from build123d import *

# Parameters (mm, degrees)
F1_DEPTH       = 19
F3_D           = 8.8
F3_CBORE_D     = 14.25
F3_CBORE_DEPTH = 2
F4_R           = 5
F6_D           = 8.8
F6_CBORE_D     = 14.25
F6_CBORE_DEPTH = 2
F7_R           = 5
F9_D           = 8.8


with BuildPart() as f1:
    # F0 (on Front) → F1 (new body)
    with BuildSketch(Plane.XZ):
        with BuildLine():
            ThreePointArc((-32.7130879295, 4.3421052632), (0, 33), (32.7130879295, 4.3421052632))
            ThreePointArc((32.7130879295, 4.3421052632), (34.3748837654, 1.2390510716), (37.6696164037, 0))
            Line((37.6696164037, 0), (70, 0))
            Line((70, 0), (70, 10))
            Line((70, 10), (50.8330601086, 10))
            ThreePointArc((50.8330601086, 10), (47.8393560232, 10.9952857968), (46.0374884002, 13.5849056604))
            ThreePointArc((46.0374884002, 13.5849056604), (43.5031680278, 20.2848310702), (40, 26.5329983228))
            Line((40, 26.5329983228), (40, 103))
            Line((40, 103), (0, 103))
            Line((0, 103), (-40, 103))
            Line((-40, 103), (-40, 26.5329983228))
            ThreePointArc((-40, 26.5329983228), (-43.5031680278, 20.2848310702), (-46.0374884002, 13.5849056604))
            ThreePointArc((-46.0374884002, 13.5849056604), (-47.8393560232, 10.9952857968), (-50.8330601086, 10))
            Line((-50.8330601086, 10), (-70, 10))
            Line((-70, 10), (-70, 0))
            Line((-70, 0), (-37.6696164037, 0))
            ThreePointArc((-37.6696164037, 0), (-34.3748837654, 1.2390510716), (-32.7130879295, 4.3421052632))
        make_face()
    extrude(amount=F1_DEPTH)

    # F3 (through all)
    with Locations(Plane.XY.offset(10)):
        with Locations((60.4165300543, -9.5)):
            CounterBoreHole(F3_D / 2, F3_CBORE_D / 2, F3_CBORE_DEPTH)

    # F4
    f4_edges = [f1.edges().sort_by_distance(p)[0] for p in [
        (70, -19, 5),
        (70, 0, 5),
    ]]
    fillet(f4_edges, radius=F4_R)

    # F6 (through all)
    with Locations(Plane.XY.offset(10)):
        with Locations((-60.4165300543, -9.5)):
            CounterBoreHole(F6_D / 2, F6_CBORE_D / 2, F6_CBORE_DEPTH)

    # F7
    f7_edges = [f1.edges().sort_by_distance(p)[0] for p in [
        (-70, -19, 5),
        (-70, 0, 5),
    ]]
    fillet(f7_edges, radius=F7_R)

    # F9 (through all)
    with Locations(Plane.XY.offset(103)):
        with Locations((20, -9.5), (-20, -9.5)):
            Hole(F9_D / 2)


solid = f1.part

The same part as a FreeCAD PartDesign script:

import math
import FreeCAD as App
import Part
import Sketcher


def edges_at(feature, points):
    """Names of the edges that pass closest to the given points."""
    edges = feature.Shape.Edges
    near = lambda p: min(range(len(edges)), key=lambda i: edges[i].distToShape(Part.Vertex(*p))[0])
    return sorted({f"Edge{near(p) + 1}" for p in points})

doc = App.newDocument("Part")
body = doc.addObject("PartDesign::Body", "Body")

# Sketch on XZ plane
sketch1 = body.newObject("Sketcher::SketchObject", "Sketch")
sketch1.AttachmentSupport = (doc.getObject("XZ_Plane"), [""])
sketch1.MapMode = "FlatFace"
sketch1.addGeometry([
    Part.ArcOfCircle(Part.Circle(App.Vector(0, 0, 0), App.Vector(0, 0, 1), 33), math.radians(8), math.radians(172)),  # 0
    Part.ArcOfCircle(Part.Circle(App.Vector(38, 5, 0), App.Vector(0, 0, 1), 5), math.radians(-172), math.radians(-90)),  # 1
    Part.LineSegment(App.Vector(38, 0, 0), App.Vector(70, 0, 0)),  # 2
    Part.LineSegment(App.Vector(70, 0, 0), App.Vector(70, 10, 0)),  # 3
    Part.LineSegment(App.Vector(70, 10, 0), App.Vector(51, 10, 0)),  # 4
    Part.ArcOfCircle(Part.Circle(App.Vector(51, 15, 0), App.Vector(0, 0, 1), 5), math.radians(-164), math.radians(-90)),  # 5
    Part.ArcOfCircle(Part.Circle(App.Vector(0, 0, 0), App.Vector(0, 0, 1), 48), math.radians(16.44), math.radians(33.56)),  # 6
    Part.LineSegment(App.Vector(40, 27, 0), App.Vector(40, 103, 0)),  # 7
    Part.LineSegment(App.Vector(40, 103, 0), App.Vector(-40, 103, 0)),  # 8
    Part.LineSegment(App.Vector(-40, 103, 0), App.Vector(-40, 27, 0)),  # 9
    Part.ArcOfCircle(Part.Circle(App.Vector(0, 0, 0), App.Vector(0, 0, 1), 48), math.radians(146.44), math.radians(163.56)),  # 10
    Part.ArcOfCircle(Part.Circle(App.Vector(-51, 15, 0), App.Vector(0, 0, 1), 5), math.radians(-90), math.radians(-16)),  # 11
    Part.LineSegment(App.Vector(-51, 10, 0), App.Vector(-70, 10, 0)),  # 12
    Part.LineSegment(App.Vector(-70, 10, 0), App.Vector(-70, 0, 0)),  # 13
    Part.LineSegment(App.Vector(-70, 0, 0), App.Vector(-38, 0, 0)),  # 14
    Part.ArcOfCircle(Part.Circle(App.Vector(-38, 5, 0), App.Vector(0, 0, 1), 5), math.radians(-90), math.radians(-8)),  # 15
], False)
sketch1.addConstraint([
    Sketcher.Constraint("Tangent", 0, 1, 1, 1),
    Sketcher.Constraint("Tangent", 1, 2, 2, 1),
    Sketcher.Constraint("Coincident", 2, 2, 3, 1),
    Sketcher.Constraint("Coincident", 3, 2, 4, 1),
    Sketcher.Constraint("Tangent", 4, 2, 5, 2),
    Sketcher.Constraint("Tangent", 5, 1, 6, 1),
    Sketcher.Constraint("Coincident", 6, 2, 7, 1),
    Sketcher.Constraint("Coincident", 7, 2, 8, 1),
    Sketcher.Constraint("Coincident", 8, 2, 9, 1),
    Sketcher.Constraint("Coincident", 9, 2, 10, 1),
    Sketcher.Constraint("Tangent", 10, 2, 11, 2),
    Sketcher.Constraint("Tangent", 11, 1, 12, 1),
    Sketcher.Constraint("Coincident", 12, 2, 13, 1),
    Sketcher.Constraint("Coincident", 13, 2, 14, 1),
    Sketcher.Constraint("Tangent", 14, 2, 15, 1),
    Sketcher.Constraint("Tangent", 15, 2, 0, 2),
    Sketcher.Constraint("Horizontal", 2),
    Sketcher.Constraint("Vertical", 3),
    Sketcher.Constraint("Horizontal", 4),
    Sketcher.Constraint("Vertical", 7),
    Sketcher.Constraint("Horizontal", 8),
    Sketcher.Constraint("Vertical", 9),
    Sketcher.Constraint("Horizontal", 12),
    Sketcher.Constraint("Vertical", 13),
    Sketcher.Constraint("Horizontal", 14),
    Sketcher.Constraint("Coincident", 0, 3, -1, 1),
    Sketcher.Constraint("Coincident", 6, 3, -1, 1),
    Sketcher.Constraint("Coincident", 10, 3, -1, 1),
    Sketcher.Constraint("Equal", 1, 5),
    Sketcher.Constraint("Equal", 6, 10),
    Sketcher.Constraint("Equal", 5, 11),
    Sketcher.Constraint("Equal", 11, 15),
    Sketcher.Constraint("Symmetric", 2, 2, 13, 2, -1, 1),
    Sketcher.Constraint("PointOnObject", 1, 2, -1),
    Sketcher.Constraint("Horizontal", 5, 3, 11, 3),
    Sketcher.Constraint("Horizontal", 6, 2, 9, 2),
    Sketcher.Constraint("Radius", 0, 33.0),
    Sketcher.Constraint("Radius", 1, 5.0),
    Sketcher.Constraint("Radius", 6, 48.0),
    Sketcher.Constraint("DistanceX", 8, 2, 8, 1, 80.0),
    Sketcher.Constraint("DistanceY", 3, 1, 3, 2, 10.0),
    Sketcher.Constraint("DistanceX", -1, 1, 2, 2, 70.0),
    Sketcher.Constraint("DistanceY", -1, 1, 7, 2, 103.0),
])
pad1 = body.newObject("PartDesign::Pad", "Pad")
pad1.Profile = sketch1
pad1.Length = 19

# Sketch on XY plane
sketch2 = body.newObject("Sketcher::SketchObject", "Sketch001")
sketch2.AttachmentSupport = (doc.getObject("XY_Plane"), [""])
sketch2.MapMode = "FlatFace"
sketch2.AttachmentOffset = App.Placement(App.Vector(0, 0, 10), App.Rotation())
sketch2.addGeometry(Part.Circle(App.Vector(60.4, -9.5, 0), App.Vector(0, 0, 1), 4.4), False)
sketch2.addConstraint([
    Sketcher.Constraint("Diameter", 0, 8.8),
    Sketcher.Constraint("DistanceY", 0, 3, -1, 1, 9.5),
    Sketcher.Constraint("DistanceX", -1, 1, 0, 3, 60.41653),
])
doc.recompute()
hole = body.newObject("PartDesign::Hole", "Hole")
hole.Profile = sketch2
hole.ThreadType = "None"
hole.Diameter = 8.8
hole.DepthType = "ThroughAll"
hole.HoleCutType = "Counterbore"
hole.HoleCutDiameter = 14.25
hole.HoleCutDepth = 2
doc.recompute()

fillet = body.newObject("PartDesign::Fillet", "Fillet")
fillet.Base = (hole, edges_at(hole, [(70, -19, 5), (70, 0, 5)]))
fillet.Radius = 5

# Sketch on XY plane
sketch3 = body.newObject("Sketcher::SketchObject", "Sketch002")
sketch3.AttachmentSupport = (doc.getObject("XY_Plane"), [""])
sketch3.MapMode = "FlatFace"
sketch3.AttachmentOffset = App.Placement(App.Vector(0, 0, 10), App.Rotation())
sketch3.addGeometry(Part.Circle(App.Vector(-60.4, -9.5, 0), App.Vector(0, 0, 1), 4.4), False)
sketch3.addConstraint([
    Sketcher.Constraint("Diameter", 0, 8.8),
    Sketcher.Constraint("DistanceY", 0, 3, -1, 1, 9.5),
    Sketcher.Constraint("DistanceX", 0, 3, -1, 1, 60.41653),
])
doc.recompute()
hole2 = body.newObject("PartDesign::Hole", "Hole001")
hole2.Profile = sketch3
hole2.ThreadType = "None"
hole2.Diameter = 8.8
hole2.DepthType = "ThroughAll"
hole2.HoleCutType = "Counterbore"
hole2.HoleCutDiameter = 14.25
hole2.HoleCutDepth = 2
doc.recompute()

fillet2 = body.newObject("PartDesign::Fillet", "Fillet001")
fillet2.Base = (hole2, edges_at(hole2, [(-70, -19, 5), (-70, 0, 5)]))
fillet2.Radius = 5

# Sketch on XY plane
sketch4 = body.newObject("Sketcher::SketchObject", "Sketch003")
sketch4.AttachmentSupport = (doc.getObject("XY_Plane"), [""])
sketch4.MapMode = "FlatFace"
sketch4.AttachmentOffset = App.Placement(App.Vector(0, 0, 103), App.Rotation())
sketch4.addGeometry([
    Part.Circle(App.Vector(20, -9.5, 0), App.Vector(0, 0, 1), 4.4),
    Part.Circle(App.Vector(-20, -9.5, 0), App.Vector(0, 0, 1), 4.4),
], False)
sketch4.addConstraint([
    Sketcher.Constraint("Equal", 0, 1),
    Sketcher.Constraint("Symmetric", 0, 3, 1, 3, -2),
    Sketcher.Constraint("Diameter", 0, 8.8),
    Sketcher.Constraint("DistanceX", -1, 1, 0, 3, 20.0),
    Sketcher.Constraint("DistanceY", 0, 3, -1, 1, 9.5),
])
doc.recompute()
hole3 = body.newObject("PartDesign::Hole", "Hole002")
hole3.Profile = sketch4
hole3.ThreadType = "None"
hole3.Diameter = 8.8
hole3.DepthType = "ThroughAll"

doc.recompute()
